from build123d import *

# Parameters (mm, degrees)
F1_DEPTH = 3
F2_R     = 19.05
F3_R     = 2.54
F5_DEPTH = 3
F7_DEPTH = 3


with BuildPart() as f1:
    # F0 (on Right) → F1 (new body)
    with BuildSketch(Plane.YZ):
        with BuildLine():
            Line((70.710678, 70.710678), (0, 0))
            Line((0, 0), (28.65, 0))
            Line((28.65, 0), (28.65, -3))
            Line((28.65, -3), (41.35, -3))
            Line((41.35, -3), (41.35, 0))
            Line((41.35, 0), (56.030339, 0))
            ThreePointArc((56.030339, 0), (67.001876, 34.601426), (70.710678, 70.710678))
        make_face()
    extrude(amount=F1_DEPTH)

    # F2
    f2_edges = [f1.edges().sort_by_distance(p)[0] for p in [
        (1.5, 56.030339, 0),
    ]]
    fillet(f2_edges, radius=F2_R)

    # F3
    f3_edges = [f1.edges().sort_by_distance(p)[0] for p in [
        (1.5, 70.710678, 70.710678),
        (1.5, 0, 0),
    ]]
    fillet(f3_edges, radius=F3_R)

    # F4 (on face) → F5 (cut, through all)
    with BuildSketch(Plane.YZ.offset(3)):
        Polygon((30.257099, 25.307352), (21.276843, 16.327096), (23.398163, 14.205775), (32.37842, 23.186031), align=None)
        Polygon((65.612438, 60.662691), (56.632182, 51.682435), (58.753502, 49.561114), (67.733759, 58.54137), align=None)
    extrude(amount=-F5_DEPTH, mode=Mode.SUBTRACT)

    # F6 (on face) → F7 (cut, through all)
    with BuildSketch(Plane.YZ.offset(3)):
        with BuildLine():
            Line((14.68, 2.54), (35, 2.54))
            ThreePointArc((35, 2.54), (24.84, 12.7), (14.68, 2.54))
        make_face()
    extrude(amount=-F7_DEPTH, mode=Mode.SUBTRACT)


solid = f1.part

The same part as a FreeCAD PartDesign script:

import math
import FreeCAD as App
import Part
import Sketcher
from FreeCAD import Vector
Q = App.Units.Quantity


def edges_at(feature, points):
    """Names of the edges that pass closest to the given points."""
    edges = feature.Shape.Edges
    near = lambda p: min(range(len(edges)), key=lambda i: edges[i].distToShape(Part.Vertex(*p))[0])
    return sorted({f"Edge{near(p) + 1}" for p in points})

doc = App.newDocument("Part")
body = doc.addObject("PartDesign::Body", "Body")

# Sketch on YZ plane
sketch1 = doc.addObject("Sketcher::SketchObject", "Sketch")
body.addObject(sketch1)
sketch1.AttachmentSupport = (doc.YZ_Plane, [""])
sketch1.MapMode = "FlatFace"
sketch1.addGeometry([
    Part.LineSegment(Vector(70.710678, 70.710678, 0), Vector(0, 0, 0)),  # 0
    Part.LineSegment(Vector(0, 0, 0), Vector(28.65, 0, 0)),  # 1
    Part.LineSegment(Vector(28.65, 0, 0), Vector(28.65, -3, 0)),  # 2
    Part.LineSegment(Vector(28.65, -3, 0), Vector(41.35, -3, 0)),  # 3
    Part.LineSegment(Vector(41.35, -3, 0), Vector(41.35, 0, 0)),  # 4
    Part.LineSegment(Vector(41.35, 0, 0), Vector(56.030339, 0, 0)),  # 5
    Part.ArcOfCircle(Part.Circle(Vector(-106.925278, 70.710676, 0), Vector(0, 0, 1), 177.635956), math.radians(-23.457275), math.radians(0)),  # 6
], False)
sketch1.addConstraint([
    Sketcher.Constraint("Coincident", 0, 2, 1, 1),
    Sketcher.Constraint("Coincident", 1, 2, 2, 1),
    Sketcher.Constraint("Coincident", 2, 2, 3, 1),
    Sketcher.Constraint("Coincident", 3, 2, 4, 1),
    Sketcher.Constraint("Coincident", 4, 2, 5, 1),
    Sketcher.Constraint("Coincident", 5, 2, 6, 1),
    Sketcher.Constraint("Coincident", 6, 2, 0, 1),
    Sketcher.Constraint("Horizontal", 1),
    Sketcher.Constraint("Vertical", 2),
    Sketcher.Constraint("Horizontal", 3),
    Sketcher.Constraint("Vertical", 4),
    Sketcher.Constraint("Horizontal", 5),
    Sketcher.Constraint("Coincident", 0, 2, -1, 1),
    Sketcher.Constraint("PointOnObject", 4, 2, -1),
    Sketcher.Constraint("DistanceX", 3, 1, 3, 2, Q("0.5 in")),
    Sketcher.Constraint("Angle", 0, Q("-135 deg")),
    Sketcher.Constraint("DistanceX", 1, 1, 1, 2, Q("28.65 mm")),
    Sketcher.Constraint("DistanceY", 2, 2, 2, 1, Q("3 mm")),
    Sketcher.Constraint("Radius", 6, Q("177.635956 mm")),
    Sketcher.Constraint("Distance", 0, Q("100 mm")),
    Sketcher.Constraint("DistanceX", 5, 1, 5, 2, Q("14.680339 mm")),
])
pad1 = doc.addObject("PartDesign::Pad", "Pad")
body.addObject(pad1)
pad1.Profile = sketch1
pad1.Length = 3
doc.recompute()

fillet = doc.addObject("PartDesign::Fillet", "Fillet")
body.addObject(fillet)
fillet.Base = (pad1, edges_at(pad1, [(1.5, 56.03, 0)]))
fillet.Radius = Q("0.75 in")
doc.recompute()

fillet2 = doc.addObject("PartDesign::Fillet", "Fillet001")
body.addObject(fillet2)
fillet2.Base = (fillet, edges_at(fillet, [(1.5, 70.711, 70.711), (1.5, 0, 0)]))
fillet2.Radius = Q("0.1 in")

# Sketch on YZ plane
sketch2 = doc.addObject("Sketcher::SketchObject", "Sketch001")
body.addObject(sketch2)
sketch2.AttachmentSupport = (doc.YZ_Plane, [""])
sketch2.MapMode = "FlatFace"
sketch2.AttachmentOffset = App.Placement(Vector(0, 0, 3), App.Rotation())
sketch2.addGeometry([
    Part.LineSegment(Vector(30.257099, 25.307352, 0), Vector(21.276843, 16.327096, 0)),  # 0
    Part.LineSegment(Vector(21.276843, 16.327096, 0), Vector(23.398163, 14.205775, 0)),  # 1
    Part.LineSegment(Vector(23.398163, 14.205775, 0), Vector(32.37842, 23.186031, 0)),  # 2
    Part.LineSegment(Vector(32.37842, 23.186031, 0), Vector(30.257099, 25.307352, 0)),  # 3
    Part.LineSegment(Vector(65.612438, 60.662691, 0), Vector(56.632182, 51.682435, 0)),  # 4
    Part.LineSegment(Vector(56.632182, 51.682435, 0), Vector(58.753502, 49.561114, 0)),  # 5
    Part.LineSegment(Vector(58.753502, 49.561114, 0), Vector(67.733759, 58.54137, 0)),  # 6
    Part.LineSegment(Vector(67.733759, 58.54137, 0), Vector(65.612438, 60.662691, 0)),  # 7
], False)
sketch2.addConstraint([
    Sketcher.Constraint("Coincident", 0, 2, 1, 1),
    Sketcher.Constraint("Coincident", 1, 2, 2, 1),
    Sketcher.Constraint("Coincident", 2, 2, 3, 1),
    Sketcher.Constraint("Coincident", 3, 2, 0, 1),
    Sketcher.Constraint("Coincident", 4, 2, 5, 1),
    Sketcher.Constraint("Coincident", 5, 2, 6, 1),
    Sketcher.Constraint("Coincident", 6, 2, 7, 1),
    Sketcher.Constraint("Coincident", 7, 2, 4, 1),
    Sketcher.Constraint("Perpendicular", 0, 1),
    Sketcher.Constraint("Perpendicular", 1, 2),
    Sketcher.Constraint("Perpendicular", 2, 3),
    Sketcher.Constraint("Perpendicular", 3, 4),
    Sketcher.Constraint("Perpendicular", 4, 5),
    Sketcher.Constraint("Perpendicular", 5, 6),
    Sketcher.Constraint("Perpendicular", 6, 7),
    Sketcher.Constraint("Equal", 2, 4),
    Sketcher.Constraint("Equal", 3, 5),
    Sketcher.Constraint("Angle", 0, Q("-135 deg")),
    Sketcher.Constraint("Distance", 0, Q("0.5 in")),
    Sketcher.Constraint("Distance", 1, Q("3 mm")),
    Sketcher.Constraint("DistanceX", -1, 1, 3, 2, Q("30.257099 mm")),
    Sketcher.Constraint("DistanceX", -1, 1, 5, 2, Q("58.753502 mm")),
    Sketcher.Constraint("DistanceY", -1, 1, 2, 2, Q("23.186031 mm")),
    Sketcher.Constraint("DistanceY", -1, 1, 6, 2, Q("58.54137 mm")),
])
pocket1 = doc.addObject("PartDesign::Pocket", "Pocket")
body.addObject(pocket1)
pocket1.Profile = sketch2
pocket1.Type = "ThroughAll"

# Sketch on YZ plane
sketch3 = doc.addObject("Sketcher::SketchObject", "Sketch002")
body.addObject(sketch3)
sketch3.AttachmentSupport = (doc.YZ_Plane, [""])
sketch3.MapMode = "FlatFace"
sketch3.AttachmentOffset = App.Placement(Vector(0, 0, 3), App.Rotation())
sketch3.addGeometry([
    Part.LineSegment(Vector(14.68, 2.54, 0), Vector(35, 2.54, 0)),
    Part.ArcOfCircle(Part.Circle(Vector(24.84, 2.54, 0), Vector(0, 0, 1), 10.16), math.radians(0), math.radians(180)),
], False)
sketch3.addConstraint([
    Sketcher.Constraint("Coincident", 0, 1, 1, 2),
    Sketcher.Constraint("Coincident", 1, 1, 0, 2),
    Sketcher.Constraint("Horizontal", 0),
    Sketcher.Constraint("Horizontal", 1, 3, 0, 1),
    Sketcher.Constraint("Radius", 1, Q("0.4 in")),
    Sketcher.Constraint("DistanceY", -1, 1, 1, 3, Q("0.1 in")),
    Sketcher.Constraint("DistanceX", -1, 1, 1, 3, Q("24.84 mm")),
])
pocket2 = doc.addObject("PartDesign::Pocket", "Pocket001")
body.addObject(pocket2)
pocket2.Profile = sketch3
pocket2.Type = "ThroughAll"

doc.recompute()
